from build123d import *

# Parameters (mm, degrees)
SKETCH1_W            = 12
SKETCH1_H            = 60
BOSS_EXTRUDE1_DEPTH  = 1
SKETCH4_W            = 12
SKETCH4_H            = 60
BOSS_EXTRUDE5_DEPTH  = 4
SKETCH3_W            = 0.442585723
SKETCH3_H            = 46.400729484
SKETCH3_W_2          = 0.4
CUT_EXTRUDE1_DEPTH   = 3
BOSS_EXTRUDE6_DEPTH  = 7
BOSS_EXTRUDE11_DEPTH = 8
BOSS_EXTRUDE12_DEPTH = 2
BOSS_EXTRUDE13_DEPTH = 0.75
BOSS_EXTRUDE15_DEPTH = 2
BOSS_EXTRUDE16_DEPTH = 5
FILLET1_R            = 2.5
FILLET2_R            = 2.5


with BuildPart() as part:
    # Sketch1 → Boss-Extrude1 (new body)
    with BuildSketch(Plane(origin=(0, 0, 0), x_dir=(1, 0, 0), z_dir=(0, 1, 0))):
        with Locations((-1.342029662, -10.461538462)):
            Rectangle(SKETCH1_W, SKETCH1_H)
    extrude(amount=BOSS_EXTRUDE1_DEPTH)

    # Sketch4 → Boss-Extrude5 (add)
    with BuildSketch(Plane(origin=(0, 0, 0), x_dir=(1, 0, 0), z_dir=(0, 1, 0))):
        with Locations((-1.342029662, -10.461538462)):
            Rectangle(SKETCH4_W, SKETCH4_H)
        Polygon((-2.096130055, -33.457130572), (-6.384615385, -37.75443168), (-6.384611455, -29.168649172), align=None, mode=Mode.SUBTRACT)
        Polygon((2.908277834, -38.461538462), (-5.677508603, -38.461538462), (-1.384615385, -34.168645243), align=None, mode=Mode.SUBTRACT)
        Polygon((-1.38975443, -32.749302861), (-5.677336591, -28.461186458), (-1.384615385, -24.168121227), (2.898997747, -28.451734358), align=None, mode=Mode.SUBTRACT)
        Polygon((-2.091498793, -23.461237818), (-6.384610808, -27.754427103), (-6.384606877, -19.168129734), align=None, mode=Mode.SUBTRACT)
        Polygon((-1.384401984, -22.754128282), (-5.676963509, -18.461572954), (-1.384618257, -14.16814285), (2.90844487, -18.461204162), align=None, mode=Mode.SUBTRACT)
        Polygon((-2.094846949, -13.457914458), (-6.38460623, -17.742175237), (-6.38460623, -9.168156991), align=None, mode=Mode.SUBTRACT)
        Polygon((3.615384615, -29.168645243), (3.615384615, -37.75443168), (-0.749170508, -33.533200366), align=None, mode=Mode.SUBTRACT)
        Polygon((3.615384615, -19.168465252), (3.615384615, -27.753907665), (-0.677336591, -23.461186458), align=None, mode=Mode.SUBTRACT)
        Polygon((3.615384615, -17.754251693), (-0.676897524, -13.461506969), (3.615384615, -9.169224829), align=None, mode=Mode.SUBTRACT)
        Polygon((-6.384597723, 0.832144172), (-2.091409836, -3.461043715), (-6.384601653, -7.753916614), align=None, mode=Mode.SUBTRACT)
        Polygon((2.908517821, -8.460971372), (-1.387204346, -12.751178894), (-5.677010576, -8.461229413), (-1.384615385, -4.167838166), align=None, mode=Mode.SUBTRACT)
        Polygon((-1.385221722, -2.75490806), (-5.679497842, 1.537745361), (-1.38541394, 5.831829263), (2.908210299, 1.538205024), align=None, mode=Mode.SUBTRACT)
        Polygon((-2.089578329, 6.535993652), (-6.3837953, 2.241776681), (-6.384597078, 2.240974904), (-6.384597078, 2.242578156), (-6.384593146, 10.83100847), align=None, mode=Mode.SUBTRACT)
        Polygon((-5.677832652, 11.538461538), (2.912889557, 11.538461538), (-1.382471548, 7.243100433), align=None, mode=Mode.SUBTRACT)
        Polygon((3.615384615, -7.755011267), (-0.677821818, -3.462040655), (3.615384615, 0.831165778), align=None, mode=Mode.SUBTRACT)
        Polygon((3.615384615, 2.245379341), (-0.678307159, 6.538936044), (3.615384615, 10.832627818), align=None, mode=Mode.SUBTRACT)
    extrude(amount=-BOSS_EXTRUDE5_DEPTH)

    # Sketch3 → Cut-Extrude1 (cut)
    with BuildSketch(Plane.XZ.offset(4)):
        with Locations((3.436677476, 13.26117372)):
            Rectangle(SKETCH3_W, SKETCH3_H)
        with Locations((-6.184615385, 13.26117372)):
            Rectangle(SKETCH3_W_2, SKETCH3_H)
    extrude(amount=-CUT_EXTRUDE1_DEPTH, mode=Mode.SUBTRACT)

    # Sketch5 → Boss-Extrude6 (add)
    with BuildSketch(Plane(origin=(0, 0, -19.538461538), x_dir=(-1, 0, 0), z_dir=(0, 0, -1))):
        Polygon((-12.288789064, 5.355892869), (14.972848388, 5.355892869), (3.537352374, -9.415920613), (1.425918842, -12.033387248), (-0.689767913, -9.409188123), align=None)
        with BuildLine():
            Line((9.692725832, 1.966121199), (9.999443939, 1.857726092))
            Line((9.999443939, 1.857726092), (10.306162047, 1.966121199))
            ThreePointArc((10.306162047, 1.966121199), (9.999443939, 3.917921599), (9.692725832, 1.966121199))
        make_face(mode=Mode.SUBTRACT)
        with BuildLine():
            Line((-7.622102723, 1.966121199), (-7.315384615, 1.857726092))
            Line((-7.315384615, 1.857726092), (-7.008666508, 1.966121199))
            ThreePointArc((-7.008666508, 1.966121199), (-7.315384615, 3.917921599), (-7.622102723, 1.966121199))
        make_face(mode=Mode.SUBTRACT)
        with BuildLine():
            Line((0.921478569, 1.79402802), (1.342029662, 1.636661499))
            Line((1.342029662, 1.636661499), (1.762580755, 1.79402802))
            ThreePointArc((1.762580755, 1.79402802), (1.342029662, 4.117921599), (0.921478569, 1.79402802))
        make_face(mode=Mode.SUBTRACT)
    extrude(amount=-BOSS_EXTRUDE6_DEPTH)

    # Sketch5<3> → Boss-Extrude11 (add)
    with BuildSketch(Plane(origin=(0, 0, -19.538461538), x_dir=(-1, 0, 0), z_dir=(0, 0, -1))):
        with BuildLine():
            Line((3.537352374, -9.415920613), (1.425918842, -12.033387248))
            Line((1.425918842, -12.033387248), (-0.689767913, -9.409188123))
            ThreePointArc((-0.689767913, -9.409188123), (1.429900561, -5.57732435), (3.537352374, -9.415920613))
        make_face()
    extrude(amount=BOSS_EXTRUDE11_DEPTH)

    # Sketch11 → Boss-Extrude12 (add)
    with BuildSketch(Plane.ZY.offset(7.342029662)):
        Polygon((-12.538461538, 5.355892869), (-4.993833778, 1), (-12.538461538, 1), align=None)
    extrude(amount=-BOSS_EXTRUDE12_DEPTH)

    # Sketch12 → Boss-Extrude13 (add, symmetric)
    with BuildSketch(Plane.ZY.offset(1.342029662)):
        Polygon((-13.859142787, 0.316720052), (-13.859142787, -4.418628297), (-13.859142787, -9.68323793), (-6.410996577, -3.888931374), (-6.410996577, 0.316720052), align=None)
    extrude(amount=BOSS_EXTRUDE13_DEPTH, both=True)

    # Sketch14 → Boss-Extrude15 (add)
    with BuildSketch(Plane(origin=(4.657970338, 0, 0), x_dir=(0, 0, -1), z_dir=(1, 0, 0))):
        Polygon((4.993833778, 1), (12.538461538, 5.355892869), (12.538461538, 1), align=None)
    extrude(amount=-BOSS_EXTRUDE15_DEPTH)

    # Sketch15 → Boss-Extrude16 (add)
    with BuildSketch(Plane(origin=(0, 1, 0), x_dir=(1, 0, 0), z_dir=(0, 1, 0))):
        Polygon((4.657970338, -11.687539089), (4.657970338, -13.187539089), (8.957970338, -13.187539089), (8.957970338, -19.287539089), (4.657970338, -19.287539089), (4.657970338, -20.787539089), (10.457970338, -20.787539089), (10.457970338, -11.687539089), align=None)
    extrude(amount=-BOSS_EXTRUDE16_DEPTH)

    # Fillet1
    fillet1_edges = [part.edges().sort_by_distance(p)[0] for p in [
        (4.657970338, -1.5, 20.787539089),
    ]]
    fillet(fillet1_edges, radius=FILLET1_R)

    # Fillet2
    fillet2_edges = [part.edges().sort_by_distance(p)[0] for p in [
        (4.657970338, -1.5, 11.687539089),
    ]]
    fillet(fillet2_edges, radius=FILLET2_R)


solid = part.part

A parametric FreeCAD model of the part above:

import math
import FreeCAD as App
import Part
import Sketcher
from FreeCAD import Vector
Q = App.Units.Quantity


def edges_at(feature, points):
    """Names of the edges that pass closest to the given points."""
    edges = feature.Shape.Edges
    near = lambda p: min(range(len(edges)), key=lambda i: edges[i].distToShape(Part.Vertex(*p))[0])
    return sorted({f"Edge{near(p) + 1}" for p in points})


def add_polygon(sketch, points):
    """Adds a closed chain of lines whose ends are joined by coincident constraints."""
    first, n = sketch.GeometryCount, len(points)
    for a, b in zip(points, points[1:] + points[:1]):
        sketch.addGeometry(Part.LineSegment(App.Vector(*a, 0), App.Vector(*b, 0)), False)
    for i in range(n):
        sketch.addConstraint(Sketcher.Constraint("Coincident", first + i, 2, first + (i + 1) % n, 1))

doc = App.newDocument("Part")
body = doc.addObject("PartDesign::Body", "Body")

# Sketch on XZ plane
sketch1 = doc.addObject("Sketcher::SketchObject", "Sketch")
body.addObject(sketch1)
sketch1.AttachmentSupport = (doc.XZ_Plane, [""])
sketch1.MapMode = "FlatFace"
add_polygon(sketch1, [(-7, -20), (-7, 40), (5, 40), (5, -20)])  # lines 0-3
sketch1.addConstraint(Sketcher.Constraint("Vertical", 0))
sketch1.addConstraint(Sketcher.Constraint("Horizontal", 1))
sketch1.addConstraint(Sketcher.Constraint("Vertical", 2))
sketch1.addConstraint(Sketcher.Constraint("Horizontal", 3))
sketch1.addConstraint(Sketcher.Constraint("DistanceX", 1, 1, 1, 2, 12.0))
sketch1.addConstraint(Sketcher.Constraint("DistanceY", 0, 1, 0, 2, 60.0))
sketch1.addConstraint(Sketcher.Constraint("DistanceX", 0, 2, -1, 1, 7.34203))
sketch1.addConstraint(Sketcher.Constraint("DistanceY", -1, 1, 0, 2, 40.461538))
pad1 = doc.addObject("PartDesign::Pad", "Pad")
body.addObject(pad1)
pad1.Profile = sketch1
pad1.Length = 1
pad1.Reversed = True

# Sketch on XZ plane
sketch2 = doc.addObject("Sketcher::SketchObject", "Sketch001")
body.addObject(sketch2)
sketch2.AttachmentSupport = (doc.XZ_Plane, [""])
sketch2.MapMode = "FlatFace"
add_polygon(sketch2, [(-7.342, -19.5385), (-7.342, 40.4615), (4.658, 40.4615), (4.658, -19.5385)])  # lines 0-3
add_polygon(sketch2, [(-6.3846, 29.1686), (-2.0961, 33.4571), (-6.3846, 37.7544)])  # lines 4-6
add_polygon(sketch2, [(2.899, 28.4517), (-1.3898, 32.7493), (-5.6773, 28.4612), (-1.3846, 24.1681)])  # lines 7-10
add_polygon(sketch2, [(-6.3846, 19.1681), (-2.0915, 23.4612), (-6.3846, 27.7544)])  # lines 11-13
add_polygon(sketch2, [(-1.3846, 34.1686), (2.9083, 38.4615), (-5.6775, 38.4615)])  # lines 14-16
add_polygon(sketch2, [(-0.7492, 33.5332), (3.6154, 29.1686), (3.6154, 37.7544)])  # lines 17-19
add_polygon(sketch2, [(2.9084, 18.4612), (-1.3844, 22.7541), (-5.677, 18.4616), (-1.3846, 14.1681)])  # lines 20-23
add_polygon(sketch2, [(-0.6773, 23.4612), (3.6154, 19.1685), (3.6154, 27.7539)])  # lines 24-26
add_polygon(sketch2, [(3.6154, 9.1692), (3.6154, 17.7543), (-0.6769, 13.4615)])  # lines 27-29
add_polygon(sketch2, [(-6.3846, 9.1682), (-2.0948, 13.4579), (-6.3846, 17.7422)])  # lines 30-32
add_polygon(sketch2, [(-6.3846, 7.7539), (-6.3846, -0.8321), (-2.0914, 3.461)])  # lines 33-35
add_polygon(sketch2, [(-6.3846, -10.831), (-2.0896, -6.536), (-6.3838, -2.2418), (-6.3846, -2.241), (-6.3846, -2.2426)])  # lines 36-40
add_polygon(sketch2, [(2.9082, -1.5382), (-1.3852, 2.7549), (-5.6795, -1.5377), (-1.3854, -5.8318)])  # lines 41-44
add_polygon(sketch2, [(-1.3846, 4.1678), (2.9085, 8.461), (-1.3872, 12.7512), (-5.677, 8.4612)])  # lines 45-48
add_polygon(sketch2, [(3.6154, -0.8312), (3.6154, 7.755), (-0.6778, 3.462)])  # lines 49-51
add_polygon(sketch2, [(-1.3825, -7.2431), (-5.6778, -11.5385), (2.9129, -11.5385)])  # lines 52-54
add_polygon(sketch2, [(3.6154, -10.8326), (3.6154, -2.2454), (-0.6783, -6.5389)])  # lines 55-57
sketch2.addConstraint(Sketcher.Constraint("Vertical", 0))
sketch2.addConstraint(Sketcher.Constraint("Horizontal", 1))
sketch2.addConstraint(Sketcher.Constraint("Vertical", 2))
sketch2.addConstraint(Sketcher.Constraint("Horizontal", 3))
sketch2.addConstraint(Sketcher.Constraint("Horizontal", 15))
sketch2.addConstraint(Sketcher.Constraint("Vertical", 18))
sketch2.addConstraint(Sketcher.Constraint("Vertical", 25))
sketch2.addConstraint(Sketcher.Constraint("Vertical", 27))
sketch2.addConstraint(Sketcher.Constraint("Vertical", 32))
sketch2.addConstraint(Sketcher.Constraint("Vertical", 39))
sketch2.addConstraint(Sketcher.Constraint("Vertical", 49))
sketch2.addConstraint(Sketcher.Constraint("Horizontal", 53))
sketch2.addConstraint(Sketcher.Constraint("Vertical", 55))
sketch2.addConstraint(Sketcher.Constraint("Parallel", 5, 7))
sketch2.addConstraint(Sketcher.Constraint("Parallel", 4, 10))
sketch2.addConstraint(Sketcher.Constraint("Parallel", 10, 11))
sketch2.addConstraint(Sketcher.Constraint("Parallel", 6, 13))
sketch2.addConstraint(Sketcher.Constraint("Parallel", 11, 14))
sketch2.addConstraint(Sketcher.Constraint("Perpendicular", 14, 16))
sketch2.addConstraint(Sketcher.Constraint("Parallel", 16, 17))
sketch2.addConstraint(Sketcher.Constraint("Parallel", 12, 20))
sketch2.addConstraint(Sketcher.Constraint("Perpendicular", 17, 21))
sketch2.addConstraint(Sketcher.Constraint("Parallel", 21, 23))
sketch2.addConstraint(Sketcher.Constraint("Perpendicular", 23, 24))
sketch2.addConstraint(Sketcher.Constraint("Perpendicular", 24, 26))
sketch2.addConstraint(Sketcher.Constraint("Perpendicular", 26, 29))
sketch2.addConstraint(Sketcher.Constraint("Perpendicular", 29, 30))
sketch2.addConstraint(Sketcher.Constraint("Parallel", 13, 33))
sketch2.addConstraint(Sketcher.Constraint("Parallel", 30, 34))
sketch2.addConstraint(Sketcher.Constraint("Parallel", 34, 36))
sketch2.addConstraint(Sketcher.Constraint("Perpendicular", 36, 37))
sketch2.addConstraint(Sketcher.Constraint("Parallel", 37, 38))
sketch2.addConstraint(Sketcher.Constraint("Parallel", 33, 40))
sketch2.addConstraint(Sketcher.Constraint("Parallel", 35, 41))
sketch2.addConstraint(Sketcher.Constraint("Parallel", 37, 43))
sketch2.addConstraint(Sketcher.Constraint("Perpendicular", 43, 44))
sketch2.addConstraint(Sketcher.Constraint("Parallel", 44, 45))
sketch2.addConstraint(Sketcher.Constraint("Parallel", 31, 46))
sketch2.addConstraint(Sketcher.Constraint("Perpendicular", 45, 51))
sketch2.addConstraint(Sketcher.Constraint("Perpendicular", 51, 52))
sketch2.addConstraint(Sketcher.Constraint("Perpendicular", 52, 54))
sketch2.addConstraint(Sketcher.Constraint("Parallel", 54, 57))
sketch2.addConstraint(Sketcher.Constraint("Horizontal", 5, 2, 18, 2))
sketch2.addConstraint(Sketcher.Constraint("Vertical", 6, 2, 12, 2))
sketch2.addConstraint(Sketcher.Constraint("Vertical", 9, 2, 16, 2))
sketch2.addConstraint(Sketcher.Constraint("Vertical", 18, 2, 24, 2))
sketch2.addConstraint(Sketcher.Constraint("Vertical", 25, 2, 27, 2))
sketch2.addConstraint(Sketcher.Constraint("Vertical", 13, 2, 31, 2))
sketch2.addConstraint(Sketcher.Constraint("Vertical", 33, 2, 38, 2))
sketch2.addConstraint(Sketcher.Constraint("Vertical", 16, 2, 48, 2))
sketch2.addConstraint(Sketcher.Constraint("Vertical", 29, 2, 49, 2))
sketch2.addConstraint(Sketcher.Constraint("Vertical", 51, 2, 55, 2))
sketch2.addConstraint(Sketcher.Constraint("Equal", 15, 18))
sketch2.addConstraint(Sketcher.Constraint("Equal", 9, 14))
sketch2.addConstraint(Sketcher.Constraint("Equal", 14, 16))
sketch2.addConstraint(Sketcher.Constraint("Equal", 16, 48))
sketch2.addConstraint(Sketcher.Constraint("Equal", 44, 56))
sketch2.addConstraint(Sketcher.Constraint("DistanceX", 1, 1, 1, 2, 12.0))
sketch2.addConstraint(Sketcher.Constraint("DistanceY", 0, 1, 0, 2, 60.0))
sketch2.addConstraint(Sketcher.Constraint("DistanceX", 5, 2, 9, 2, 5.0))
sketch2.addConstraint(Sketcher.Constraint("DistanceY", 14, 2, 1, 2, 2.0))
sketch2.addConstraint(Sketcher.Constraint("DistanceX", 16, 2, 17, 2, 5.0))
sketch2.addConstraint(Sketcher.Constraint("DistanceY", 17, 2, 16, 2, 5.0))
sketch2.addConstraint(Sketcher.Constraint("DistanceY", 3, 2, 52, 2, 8.0))
sketch2.addConstraint(Sketcher.Constraint("DistanceY", 13, 2, 20, 2, 3.585999))
sketch2.addConstraint(Sketcher.Constraint("Distance", 44, 6.072102))
sketch2.addConstraint(Sketcher.Constraint("DistanceY", 32, 2, 32, 1, 8.574018))
sketch2.addConstraint(Sketcher.Constraint("DistanceX", 11, 2, -1, 1, 2.091499))
sketch2.addConstraint(Sketcher.Constraint("DistanceY", -1, 1, 19, 2, 33.5332))
sketch2.addConstraint(Sketcher.Constraint("DistanceX", 20, 2, -1, 1, 1.384402))
sketch2.addConstraint(Sketcher.Constraint("DistanceX", 35, 2, -1, 1, 6.384602))
sketch2.addConstraint(Sketcher.Constraint("DistanceY", 54, 2, -1, 1, 7.2431))
sketch2.addConstraint(Sketcher.Constraint("DistanceX", 0, 2, 4, 2, 5.2459))
sketch2.addConstraint(Sketcher.Constraint("DistanceY", 4, 2, 5, 2, 4.297301))
sketch2.addConstraint(Sketcher.Constraint("DistanceY", 20, 2, 12, 2, 5.000299))
sketch2.addConstraint(Sketcher.Constraint("DistanceX", 20, 2, 10, 2, 4.2834))
sketch2.addConstraint(Sketcher.Constraint("DistanceY", 33, 2, 32, 2, 10.000301))
sketch2.addConstraint(Sketcher.Constraint("DistanceX", 33, 2, 28, 2, 5.7077))
sketch2.addConstraint(Sketcher.Constraint("DistanceX", 38, 2, 37, 2, 0.000802))
sketch2.addConstraint(Sketcher.Constraint("DistanceY", 39, 2, 37, 2, 0.000801))
sketch2.addConstraint(Sketcher.Constraint("DistanceX", 38, 2, 42, 2, 0.705099))
sketch2.addConstraint(Sketcher.Constraint("DistanceY", 42, 2, 33, 2, 0.705601))
sketch2.addConstraint(Sketcher.Constraint("DistanceX", 32, 2, 46, 2, 4.997402))
sketch2.addConstraint(Sketcher.Constraint("DistanceX", 47, 2, 34, 2, 3.585601))
sketch2.addConstraint(Sketcher.Constraint("DistanceX", 41, 2, 50, 2, 0.7074))
sketch2.addConstraint(Sketcher.Constraint("DistanceX", 43, 2, 51, 2, 5.000799))
sketch2.addConstraint(Sketcher.Constraint("DistanceY", 57, 2, 43, 2, 5.000799))
sketch2.addConstraint(Sketcher.Constraint("Distance", 4, 6.064829))
sketch2.addConstraint(Sketcher.Constraint("Distance", 5, 6.071071))
sketch2.addConstraint(Sketcher.Constraint("Distance", 7, 6.071449))
sketch2.addConstraint(Sketcher.Constraint("Distance", 11, 6.071372))
sketch2.addConstraint(Sketcher.Constraint("Distance", 22, 6.07106))
sketch2.addConstraint(Sketcher.Constraint("Distance", 28, 6.070531))
sketch2.addConstraint(Sketcher.Constraint("Distance", 33, 8.586061))
sketch2.addConstraint(Sketcher.Constraint("Distance", 36, 6.074068))
sketch2.addConstraint(Sketcher.Constraint("Distance", 46, 6.07117))
sketch2.addConstraint(Sketcher.Constraint("Distance", 51, 6.071511))
sketch2.addConstraint(Sketcher.Constraint("DistanceX", 15, 2, 15, 1, 8.585786))
sketch2.addConstraint(Sketcher.Constraint("DistanceX", 53, 1, 53, 2, 8.590722))
sketch2.addConstraint(Sketcher.Constraint("DistanceY", 25, 1, 25, 2, 8.585442))
sketch2.addConstraint(Sketcher.Constraint("DistanceY", 49, 1, 49, 2, 8.586177))
sketch2.addConstraint(Sketcher.Constraint("DistanceY", -1, 1, 9, 2, 24.168121))
sketch2.addConstraint(Sketcher.Constraint("DistanceY", -1, 1, 13, 2, 19.16813))
sketch2.addConstraint(Sketcher.Constraint("DistanceX", 22, 2, -1, 1, 1.384618))
sketch2.addConstraint(Sketcher.Constraint("DistanceY", -1, 1, 27, 2, 17.754252))
sketch2.addConstraint(Sketcher.Constraint("DistanceX", 34, 2, -1, 1, 2.09141))
sketch2.addConstraint(Sketcher.Constraint("DistanceY", 39, 2, -1, 1, 2.242578))
sketch2.addConstraint(Sketcher.Constraint("DistanceY", -1, 1, 41, 2, 2.754908))
sketch2.addConstraint(Sketcher.Constraint("DistanceY", -1, 1, 45, 2, 8.460971))
sketch2.addConstraint(Sketcher.Constraint("DistanceY", -1, 1, 46, 2, 12.751179))
sketch2.addConstraint(Sketcher.Constraint("DistanceY", -1, 1, 49, 2, 7.755011))
sketch2.addConstraint(Sketcher.Constraint("DistanceX", -1, 1, 53, 2, 2.91289))
sketch2.addConstraint(Sketcher.Constraint("DistanceX", 5, 2, 8, 2, 0.707279))
sketch2.addConstraint(Sketcher.Constraint("DistanceX", 21, 2, 20, 2, 4.292562))
sketch2.addConstraint(Sketcher.Constraint("DistanceY", 23, 2, 24, 2, 0.707261))
sketch2.addConstraint(Sketcher.Constraint("DistanceX", 36, 2, 56, 2, 1.411271))
pad2 = doc.addObject("PartDesign::Pad", "Pad001")
body.addObject(pad2)
pad2.Profile = sketch2
pad2.Length = 4

# Sketch on XZ plane
sketch3 = doc.addObject("Sketcher::SketchObject", "Sketch002")
body.addObject(sketch3)
sketch3.AttachmentSupport = (doc.XZ_Plane, [""])
sketch3.MapMode = "FlatFace"
sketch3.AttachmentOffset = App.Placement(Vector(0, 0, 4), App.Rotation())
add_polygon(sketch3, [(3.22, 36.46), (3.22, -9.94), (3.66, -9.94), (3.66, 36.46)])  # lines 0-3
add_polygon(sketch3, [(-6.38, 36.46), (-6.38, -9.94), (-5.98, -9.94), (-5.98, 36.46)])  # lines 4-7
sketch3.addConstraint(Sketcher.Constraint("Vertical", 0))
sketch3.addConstraint(Sketcher.Constraint("Horizontal", 1))
sketch3.addConstraint(Sketcher.Constraint("Vertical", 2))
sketch3.addConstraint(Sketcher.Constraint("Horizontal", 3))
sketch3.addConstraint(Sketcher.Constraint("Vertical", 4))
sketch3.addConstraint(Sketcher.Constraint("Horizontal", 5))
sketch3.addConstraint(Sketcher.Constraint("Vertical", 6))
sketch3.addConstraint(Sketcher.Constraint("Horizontal", 7))
sketch3.addConstraint(Sketcher.Constraint("Horizontal", 1, 2, 4, 2))
sketch3.addConstraint(Sketcher.Constraint("Horizontal", 3, 2, 6, 2))
sketch3.addConstraint(Sketcher.Constraint("DistanceX", 5, 1, 5, 2, 0.4))
sketch3.addConstraint(Sketcher.Constraint("DistanceX", 4, 2, 0, 2, 9.6))
sketch3.addConstraint(Sketcher.Constraint("DistanceY", 0, 2, 0, 1, 46.400729))
sketch3.addConstraint(Sketcher.Constraint("DistanceX", 1, 1, 1, 2, 0.442586))
sketch3.addConstraint(Sketcher.Constraint("DistanceY", 0, 2, -1, 1, 9.939191))
sketch3.addConstraint(Sketcher.Constraint("DistanceX", -1, 1, 1, 2, 3.65797))
pocket1 = doc.addObject("PartDesign::Pocket", "Pocket")
body.addObject(pocket1)
pocket1.Profile = sketch3
pocket1.Length = 3

# Sketch on XY plane
sketch4 = doc.addObject("Sketcher::SketchObject", "Sketch003")
body.addObject(sketch4)
sketch4.AttachmentSupport = (doc.XY_Plane, [""])
sketch4.MapMode = "FlatFace"
sketch4.AttachmentOffset = App.Placement(Vector(0, 0, -19.538462), App.Rotation())
add_polygon(sketch4, [(-14.97, 5.36), (12.29, 5.36), (0.69, -9.41), (-1.43, -12.03), (-3.54, -9.42)])  # lines 0-4
sketch4.addGeometry(Part.ArcOfCircle(Part.Circle(Vector(-10, 2.92, 0), Vector(0, 0, 1), 1), math.radians(-72), math.radians(252)), False)  # 5
sketch4.addGeometry(Part.LineSegment(Vector(-10.31, 1.97, 0), Vector(-10, 1.86, 0)), False)  # 6
sketch4.addGeometry(Part.LineSegment(Vector(-10, 1.86, 0), Vector(-9.69, 1.97, 0)), False)  # 7
sketch4.addGeometry(Part.ArcOfCircle(Part.Circle(Vector(-1.34, 2.92, 0), Vector(0, 0, 1), 1.2), math.radians(-69), math.radians(249)), False)  # 8
sketch4.addGeometry(Part.LineSegment(Vector(-1.76, 1.79, 0), Vector(-1.34, 1.64, 0)), False)  # 9
sketch4.addGeometry(Part.LineSegment(Vector(-1.34, 1.64, 0), Vector(-0.92, 1.79, 0)), False)  # 10
sketch4.addGeometry(Part.ArcOfCircle(Part.Circle(Vector(7.32, 2.92, 0), Vector(0, 0, 1), 1), math.radians(-72), math.radians(252)), False)  # 11
sketch4.addGeometry(Part.LineSegment(Vector(7.01, 1.97, 0), Vector(7.32, 1.86, 0)), False)  # 12
sketch4.addGeometry(Part.LineSegment(Vector(7.32, 1.86, 0), Vector(7.62, 1.97, 0)), False)  # 13
sketch4.addConstraint(Sketcher.Constraint("Coincident", 5, 2, 6, 1))
sketch4.addConstraint(Sketcher.Constraint("Coincident", 6, 2, 7, 1))
sketch4.addConstraint(Sketcher.Constraint("Coincident", 7, 2, 5, 1))
sketch4.addConstraint(Sketcher.Constraint("Tangent", 8, 2, 9, 1))
sketch4.addConstraint(Sketcher.Constraint("Coincident", 9, 2, 10, 1))
sketch4.addConstraint(Sketcher.Constraint("Tangent", 10, 2, 8, 1))
sketch4.addConstraint(Sketcher.Constraint("Coincident", 11, 2, 12, 1))
sketch4.addConstraint(Sketcher.Constraint("Coincident", 12, 2, 13, 1))
sketch4.addConstraint(Sketcher.Constraint("Coincident", 13, 2, 11, 1))
sketch4.addConstraint(Sketcher.Constraint("Horizontal", 0))
sketch4.addConstraint(Sketcher.Constraint("Equal", 5, 11))
sketch4.addConstraint(Sketcher.Constraint("Parallel", 6, 12))
sketch4.addConstraint(Sketcher.Constraint("Parallel", 7, 13))
sketch4.addConstraint(Sketcher.Constraint("Horizontal", 5, 3, 8, 3))
sketch4.addConstraint(Sketcher.Constraint("Horizontal", 8, 3, 11, 3))
sketch4.addConstraint(Sketcher.Constraint("Horizontal", 5, 2, 7, 2))
sketch4.addConstraint(Sketcher.Constraint("Horizontal", 8, 2, 10, 2))
sketch4.addConstraint(Sketcher.Constraint("Horizontal", 7, 2, 11, 2))
sketch4.addConstraint(Sketcher.Constraint("Horizontal", 6, 2, 12, 2))
sketch4.addConstraint(Sketcher.Constraint("Vertical", 5, 3, 6, 2))
sketch4.addConstraint(Sketcher.Constraint("Radius", 5, 1.0))
sketch4.addConstraint(Sketcher.Constraint("Radius", 8, 1.2))
sketch4.addConstraint(Sketcher.Constraint("DistanceY", 2, 2, 1, 2, 2.624199))
sketch4.addConstraint(Sketcher.Constraint("DistanceY", 5, 2, 5, 3, 0.9518))
sketch4.addConstraint(Sketcher.Constraint("DistanceY", 8, 2, 6, 2, 0.063698))
sketch4.addConstraint(Sketcher.Constraint("Distance", 1, 18.776179))
sketch4.addConstraint(Sketcher.Constraint("Distance", 2, 3.370838))
sketch4.addConstraint(Sketcher.Constraint("Distance", 6, 0.325308))
sketch4.addConstraint(Sketcher.Constraint("DistanceX", 0, 1, 0, 2, 27.261637))
sketch4.addConstraint(Sketcher.Constraint("DistanceY", -1, 1, 5, 3, 2.917922))
sketch4.addConstraint(Sketcher.Constraint("DistanceX", 8, 3, -1, 1, 1.34203))
sketch4.addConstraint(Sketcher.Constraint("DistanceX", -1, 1, 0, 2, 12.288789))
sketch4.addConstraint(Sketcher.Constraint("DistanceY", 1, 2, -1, 1, 9.409188))
sketch4.addConstraint(Sketcher.Constraint("DistanceX", 2, 2, -1, 1, 1.425919))
sketch4.addConstraint(Sketcher.Constraint("DistanceY", 3, 2, -1, 1, 9.415921))
sketch4.addConstraint(Sketcher.Constraint("DistanceX", 5, 3, 11, 3, 17.314829))
sketch4.addConstraint(Sketcher.Constraint("DistanceX", 5, 3, 1, 2, 10.689212))
sketch4.addConstraint(Sketcher.Constraint("DistanceX", 3, 2, 1, 2, 4.22712))
pad3 = doc.addObject("PartDesign::Pad", "Pad002")
body.addObject(pad3)
pad3.Profile = sketch4
pad3.Length = 7

# Sketch on XY plane
sketch5 = doc.addObject("Sketcher::SketchObject", "Sketch004")
body.addObject(sketch5)
sketch5.AttachmentSupport = (doc.XY_Plane, [""])
sketch5.MapMode = "FlatFace"
sketch5.AttachmentOffset = App.Placement(Vector(0, 0, -19.538462), App.Rotation())
sketch5.addGeometry(Part.LineSegment(Vector(-1.4, -12, 0), Vector(-3.5, -9.4, 0)), False)
sketch5.addGeometry(Part.ArcOfCircle(Part.Circle(Vector(-1.4, -8.1, 0), Vector(0, 0, 1), 2.5), math.radians(-32), math.radians(212)), False)
sketch5.addGeometry(Part.LineSegment(Vector(0.7, -9.4, 0), Vector(-1.4, -12, 0)), False)
sketch5.addConstraint(Sketcher.Constraint("Coincident", 0, 2, 1, 2))
sketch5.addConstraint(Sketcher.Constraint("Coincident", 1, 1, 2, 1))
sketch5.addConstraint(Sketcher.Constraint("Coincident", 2, 2, 0, 1))
sketch5.addConstraint(Sketcher.Constraint("Vertical", 1, 3, 2, 2))
sketch5.addConstraint(Sketcher.Constraint("Radius", 1, 2.5))
sketch5.addConstraint(Sketcher.Constraint("DistanceY", 0, 2, 1, 3, 1.338599))
sketch5.addConstraint(Sketcher.Constraint("DistanceY", 2, 2, 1, 1, 2.624199))
sketch5.addConstraint(Sketcher.Constraint("Distance", 2, 3.370838))
sketch5.addConstraint(Sketcher.Constraint("DistanceX", 1, 3, -1, 1, 1.425919))
sketch5.addConstraint(Sketcher.Constraint("DistanceY", 1, 3, -1, 1, 8.077321))
pad4 = doc.addObject("PartDesign::Pad", "Pad003")
body.addObject(pad4)
pad4.Profile = sketch5
pad4.Length = 8
pad4.Reversed = True

# Sketch on YZ plane
sketch6 = doc.addObject("Sketcher::SketchObject", "Sketch005")
body.addObject(sketch6)
sketch6.AttachmentSupport = (doc.YZ_Plane, [""])
sketch6.MapMode = "FlatFace"
sketch6.AttachmentOffset = App.Placement(Vector(0, 0, -7.34203), App.Rotation())
add_polygon(sketch6, [(1, -5), (5.4, -12.5), (1, -12.5)])  # lines 0-2
sketch6.addConstraint(Sketcher.Constraint("Horizontal", 1))
sketch6.addConstraint(Sketcher.Constraint("Vertical", 2))
sketch6.addConstraint(Sketcher.Constraint("Angle", 0, Q("-60 deg")))
sketch6.addConstraint(Sketcher.Constraint("DistanceX", -1, 1, 1, 2, 1.0))
sketch6.addConstraint(Sketcher.Constraint("DistanceX", 1, 2, 1, 1, 4.355893))
sketch6.addConstraint(Sketcher.Constraint("DistanceY", 0, 2, -1, 1, 12.538462))
pad5 = doc.addObject("PartDesign::Pad", "Pad004")
body.addObject(pad5)
pad5.Profile = sketch6
pad5.Length = 2

# Sketch on YZ plane
sketch7 = doc.addObject("Sketcher::SketchObject", "Sketch006")
body.addObject(sketch7)
sketch7.AttachmentSupport = (doc.YZ_Plane, [""])
sketch7.MapMode = "FlatFace"
sketch7.AttachmentOffset = App.Placement(Vector(0, 0, -1.34203), App.Rotation())
add_polygon(sketch7, [(0.3, -13.9), (-9.7, -13.9), (-3.9, -6.4), (0.3, -6.4)])  # lines 0-3
sketch7.addConstraint(Sketcher.Constraint("Horizontal", 0))
sketch7.addConstraint(Sketcher.Constraint("Horizontal", 2))
sketch7.addConstraint(Sketcher.Constraint("Vertical", 3))
sketch7.addConstraint(Sketcher.Constraint("DistanceX", 2, 1, 2, 2, 4.205651))
sketch7.addConstraint(Sketcher.Constraint("Distance", 1, 9.436571))
sketch7.addConstraint(Sketcher.Constraint("DistanceX", 0, 2, 0, 1, 9.999958))
sketch7.addConstraint(Sketcher.Constraint("DistanceX", 1, 2, -1, 1, 3.888931))
sketch7.addConstraint(Sketcher.Constraint("DistanceY", 0, 2, -1, 1, 13.859143))
pad6 = doc.addObject("PartDesign::Pad", "Pad005")
body.addObject(pad6)
pad6.Profile = sketch7
pad6.Length = 1.5
pad6.Midplane = True

# Sketch on YZ plane
sketch8 = doc.addObject("Sketcher::SketchObject", "Sketch007")
body.addObject(sketch8)
sketch8.AttachmentSupport = (doc.YZ_Plane, [""])
sketch8.MapMode = "FlatFace"
sketch8.AttachmentOffset = App.Placement(Vector(0, 0, 4.65797), App.Rotation())
add_polygon(sketch8, [(5.4, -12.5), (1, -5), (1, -12.5)])  # lines 0-2
sketch8.addConstraint(Sketcher.Constraint("Vertical", 1))
sketch8.addConstraint(Sketcher.Constraint("Horizontal", 2))
sketch8.addConstraint(Sketcher.Constraint("Angle", 0, Q("120 deg")))
sketch8.addConstraint(Sketcher.Constraint("DistanceX", -1, 1, 0, 2, 1.0))
sketch8.addConstraint(Sketcher.Constraint("DistanceX", 2, 1, 2, 2, 4.355893))
sketch8.addConstraint(Sketcher.Constraint("DistanceY", 1, 2, -1, 1, 12.538462))
pad7 = doc.addObject("PartDesign::Pad", "Pad006")
body.addObject(pad7)
pad7.Profile = sketch8
pad7.Length = 2
pad7.Reversed = True

# Sketch on XZ plane
sketch9 = doc.addObject("Sketcher::SketchObject", "Sketch008")
body.addObject(sketch9)
sketch9.AttachmentSupport = (doc.XZ_Plane, [""])
sketch9.MapMode = "FlatFace"
sketch9.AttachmentOffset = App.Placement(Vector(0, 0, -1), App.Rotation())
add_polygon(sketch9, [(4.7, 11.7), (4.7, 13.2), (9, 13.2), (9, 19.3), (4.7, 19.3), (4.7, 20.8), (10.5, 20.8), (10.5, 11.7)])  # lines 0-7
sketch9.addConstraint(Sketcher.Constraint("Vertical", 0))
sketch9.addConstraint(Sketcher.Constraint("Horizontal", 1))
sketch9.addConstraint(Sketcher.Constraint("Vertical", 2))
sketch9.addConstraint(Sketcher.Constraint("Horizontal", 3))
sketch9.addConstraint(Sketcher.Constraint("Vertical", 4))
sketch9.addConstraint(Sketcher.Constraint("Horizontal", 5))
sketch9.addConstraint(Sketcher.Constraint("Vertical", 6))
sketch9.addConstraint(Sketcher.Constraint("Horizontal", 7))
sketch9.addConstraint(Sketcher.Constraint("Vertical", 0, 2, 3, 2))
sketch9.addConstraint(Sketcher.Constraint("Equal", 0, 4))
sketch9.addConstraint(Sketcher.Constraint("DistanceX", 1, 1, 1, 2, 4.3))
sketch9.addConstraint(Sketcher.Constraint("DistanceX", 5, 1, 5, 2, 5.8))
sketch9.addConstraint(Sketcher.Constraint("DistanceY", 0, 1, 0, 2, 1.5))
sketch9.addConstraint(Sketcher.Constraint("DistanceY", 2, 1, 2, 2, 6.1))
sketch9.addConstraint(Sketcher.Constraint("DistanceX", -1, 1, 0, 2, 4.65797))
sketch9.addConstraint(Sketcher.Constraint("DistanceY", -1, 1, 0, 2, 13.187539))
pad8 = doc.addObject("PartDesign::Pad", "Pad007")
body.addObject(pad8)
pad8.Profile = sketch9
pad8.Length = 5
doc.recompute()

fillet = doc.addObject("PartDesign::Fillet", "Fillet")
body.addObject(fillet)
fillet.Base = (pad8, edges_at(pad8, [(4.658, -1.5, 20.788)]))
fillet.Radius = 2.5
doc.recompute()

fillet2 = doc.addObject("PartDesign::Fillet", "Fillet001")
body.addObject(fillet2)
fillet2.Base = (fillet, edges_at(fillet, [(4.658, -1.5, 11.688)]))
fillet2.Radius = 2.5

doc.recompute()
